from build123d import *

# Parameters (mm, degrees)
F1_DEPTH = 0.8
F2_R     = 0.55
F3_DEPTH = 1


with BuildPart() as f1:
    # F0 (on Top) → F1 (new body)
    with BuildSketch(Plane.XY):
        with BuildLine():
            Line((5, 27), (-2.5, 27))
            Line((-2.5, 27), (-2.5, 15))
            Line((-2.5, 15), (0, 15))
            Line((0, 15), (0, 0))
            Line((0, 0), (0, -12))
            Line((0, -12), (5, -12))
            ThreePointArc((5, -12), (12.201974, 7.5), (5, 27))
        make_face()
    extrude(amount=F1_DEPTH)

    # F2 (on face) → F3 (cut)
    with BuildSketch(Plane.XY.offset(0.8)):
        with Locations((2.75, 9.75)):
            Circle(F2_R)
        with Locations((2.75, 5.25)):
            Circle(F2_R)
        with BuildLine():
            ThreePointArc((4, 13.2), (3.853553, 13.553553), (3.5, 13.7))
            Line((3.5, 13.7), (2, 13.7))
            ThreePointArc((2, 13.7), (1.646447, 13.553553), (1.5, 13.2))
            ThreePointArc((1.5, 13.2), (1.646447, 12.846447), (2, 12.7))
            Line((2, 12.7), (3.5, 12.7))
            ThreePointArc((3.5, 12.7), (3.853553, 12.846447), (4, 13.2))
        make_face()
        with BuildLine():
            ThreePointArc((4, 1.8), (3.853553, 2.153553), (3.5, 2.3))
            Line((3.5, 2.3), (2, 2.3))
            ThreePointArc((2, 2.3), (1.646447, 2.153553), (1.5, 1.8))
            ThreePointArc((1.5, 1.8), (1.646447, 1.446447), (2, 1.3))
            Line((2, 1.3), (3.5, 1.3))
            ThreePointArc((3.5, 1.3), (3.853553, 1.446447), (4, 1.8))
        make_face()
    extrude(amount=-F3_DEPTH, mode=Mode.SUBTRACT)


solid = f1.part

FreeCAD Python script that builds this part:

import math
import FreeCAD as App
import Part
import Sketcher
from FreeCAD import Vector
Q = App.Units.Quantity

doc = App.newDocument("Part")
body = doc.addObject("PartDesign::Body", "Body")

sketch1 = body.newObject("Sketcher::SketchObject", "Sketch")
sketch1.AttachmentSupport = (doc.getObject("XY_Plane"), [""])
sketch1.MapMode = "FlatFace"
sketch1.addGeometry(Part.LineSegment(Vector(5, 27, 0), Vector(-2.5, 27, 0)), False)
sketch1.addGeometry(Part.LineSegment(Vector(-2.5, 27, 0), Vector(-2.5, 15, 0)), False)
sketch1.addGeometry(Part.LineSegment(Vector(-2.5, 15, 0), Vector(0, 15, 0)), False)
sketch1.addGeometry(Part.LineSegment(Vector(0, 15, 0), Vector(0, -12, 0)), False)
sketch1.addGeometry(Part.LineSegment(Vector(0, -12, 0), Vector(5, -12, 0)), False)
sketch1.addGeometry(Part.ArcOfCircle(Part.Circle(Vector(-17.8, 7.5, 0), Vector(0, 0, 1), 30), math.radians(-41), math.radians(41)), False)
sketch1.addConstraint(Sketcher.Constraint("Coincident", 0, 2, 1, 1))
sketch1.addConstraint(Sketcher.Constraint("Coincident", 1, 2, 2, 1))
sketch1.addConstraint(Sketcher.Constraint("Coincident", 2, 2, 3, 1))
sketch1.addConstraint(Sketcher.Constraint("Coincident", 3, 2, 4, 1))
sketch1.addConstraint(Sketcher.Constraint("Coincident", 4, 2, 5, 1))
sketch1.addConstraint(Sketcher.Constraint("Coincident", 5, 2, 0, 1))
sketch1.addConstraint(Sketcher.Constraint("Horizontal", 0))
sketch1.addConstraint(Sketcher.Constraint("Vertical", 1))
sketch1.addConstraint(Sketcher.Constraint("Horizontal", 2))
sketch1.addConstraint(Sketcher.Constraint("Vertical", 3))
sketch1.addConstraint(Sketcher.Constraint("Horizontal", 4))
sketch1.addConstraint(Sketcher.Constraint("PointOnObject", 2, 2, -2))
sketch1.addConstraint(Sketcher.Constraint("Vertical", 4, 2, 5, 2))
sketch1.addConstraint(Sketcher.Constraint("Radius", 5, Q("29.999999 mm")))
sketch1.addConstraint(Sketcher.Constraint("DistanceX", 4, 1, 4, 2, Q("5 mm")))
sketch1.addConstraint(Sketcher.Constraint("DistanceY", 1, 2, 1, 1, Q("12 mm")))
sketch1.addConstraint(Sketcher.Constraint("DistanceY", 3, 2, 3, 1, Q("27 mm")))
sketch1.addConstraint(Sketcher.Constraint("DistanceX", 0, 2, 0, 1, Q("7.5 mm")))
sketch1.addConstraint(Sketcher.Constraint("DistanceY", -1, 1, 0, 2, Q("27 mm")))
pad1 = body.newObject("PartDesign::Pad", "Pad")
pad1.Profile = sketch1
pad1.Length = 0.8

sketch2 = body.newObject("Sketcher::SketchObject", "Sketch001")
sketch2.AttachmentSupport = (doc.getObject("XY_Plane"), [""])
sketch2.MapMode = "FlatFace"
sketch2.AttachmentOffset = App.Placement(Vector(0, 0, 0.8), App.Rotation())
sketch2.addGeometry(Part.Circle(Vector(2.8, 9.8, 0), Vector(0, 0, 1), 0.6), False)
sketch2.addGeometry(Part.Circle(Vector(2.8, 5.2, 0), Vector(0, 0, 1), 0.6), False)
sketch2.addGeometry(Part.ArcOfCircle(Part.Circle(Vector(3.5, 13.2, 0), Vector(0, 0, 1), 0.5), math.radians(0), math.radians(90)), False)
sketch2.addGeometry(Part.LineSegment(Vector(3.5, 13.7, 0), Vector(2, 13.7, 0)), False)
sketch2.addGeometry(Part.ArcOfCircle(Part.Circle(Vector(2, 13.2, 0), Vector(0, 0, 1), 0.5), math.radians(90), math.radians(180)), False)
sketch2.addGeometry(Part.ArcOfCircle(Part.Circle(Vector(2, 13.2, 0), Vector(0, 0, 1), 0.5), math.radians(-180), math.radians(-90)), False)
sketch2.addGeometry(Part.LineSegment(Vector(2, 12.7, 0), Vector(3.5, 12.7, 0)), False)
sketch2.addGeometry(Part.ArcOfCircle(Part.Circle(Vector(3.5, 13.2, 0), Vector(0, 0, 1), 0.5), math.radians(-90), math.radians(0)), False)
sketch2.addGeometry(Part.ArcOfCircle(Part.Circle(Vector(3.5, 1.8, 0), Vector(0, 0, 1), 0.5), math.radians(0), math.radians(90)), False)
sketch2.addGeometry(Part.LineSegment(Vector(3.5, 2.3, 0), Vector(2, 2.3, 0)), False)
sketch2.addGeometry(Part.ArcOfCircle(Part.Circle(Vector(2, 1.8, 0), Vector(0, 0, 1), 0.5), math.radians(90), math.radians(180)), False)
sketch2.addGeometry(Part.ArcOfCircle(Part.Circle(Vector(2, 1.8, 0), Vector(0, 0, 1), 0.5), math.radians(-180), math.radians(-90)), False)
sketch2.addGeometry(Part.LineSegment(Vector(2, 1.3, 0), Vector(3.5, 1.3, 0)), False)
sketch2.addGeometry(Part.ArcOfCircle(Part.Circle(Vector(3.5, 1.8, 0), Vector(0, 0, 1), 0.5), math.radians(-90), math.radians(0)), False)
sketch2.addConstraint(Sketcher.Constraint("Coincident", 2, 2, 3, 1))
sketch2.addConstraint(Sketcher.Constraint("Coincident", 3, 2, 4, 1))
sketch2.addConstraint(Sketcher.Constraint("Coincident", 4, 2, 5, 1))
sketch2.addConstraint(Sketcher.Constraint("Coincident", 5, 2, 6, 1))
sketch2.addConstraint(Sketcher.Constraint("Coincident", 6, 2, 7, 1))
sketch2.addConstraint(Sketcher.Constraint("Coincident", 7, 2, 2, 1))
sketch2.addConstraint(Sketcher.Constraint("Coincident", 8, 2, 9, 1))
sketch2.addConstraint(Sketcher.Constraint("Coincident", 9, 2, 10, 1))
sketch2.addConstraint(Sketcher.Constraint("Coincident", 10, 2, 11, 1))
sketch2.addConstraint(Sketcher.Constraint("Coincident", 11, 2, 12, 1))
sketch2.addConstraint(Sketcher.Constraint("Coincident", 12, 2, 13, 1))
sketch2.addConstraint(Sketcher.Constraint("Coincident", 13, 2, 8, 1))
sketch2.addConstraint(Sketcher.Constraint("Horizontal", 3))
sketch2.addConstraint(Sketcher.Constraint("Horizontal", 6))
sketch2.addConstraint(Sketcher.Constraint("Horizontal", 9))
sketch2.addConstraint(Sketcher.Constraint("Horizontal", 12))
sketch2.addConstraint(Sketcher.Constraint("Coincident", 5, 3, 4, 3))
sketch2.addConstraint(Sketcher.Constraint("Coincident", 7, 3, 2, 3))
sketch2.addConstraint(Sketcher.Constraint("Coincident", 11, 3, 10, 3))
sketch2.addConstraint(Sketcher.Constraint("Coincident", 13, 3, 8, 3))
sketch2.addConstraint(Sketcher.Constraint("Equal", 0, 1))
sketch2.addConstraint(Sketcher.Constraint("Equal", 7, 8))
sketch2.addConstraint(Sketcher.Constraint("Horizontal", 7, 3, 4, 2))
sketch2.addConstraint(Sketcher.Constraint("Horizontal", 4, 2, 7, 2))
sketch2.addConstraint(Sketcher.Constraint("Horizontal", 13, 3, 10, 2))
sketch2.addConstraint(Sketcher.Constraint("Horizontal", 10, 2, 13, 2))
sketch2.addConstraint(Sketcher.Constraint("Vertical", 0, 3, 1, 3))
sketch2.addConstraint(Sketcher.Constraint("Vertical", 7, 3, 8, 3))
sketch2.addConstraint(Sketcher.Constraint("Vertical", 5, 3, 10, 3))
sketch2.addConstraint(Sketcher.Constraint("Vertical", 13, 3, 2, 2))
sketch2.addConstraint(Sketcher.Constraint("Vertical", 11, 3, 3, 2))
sketch2.addConstraint(Sketcher.Constraint("Vertical", 3, 2, 5, 2))
sketch2.addConstraint(Sketcher.Constraint("Vertical", 2, 2, 6, 2))
sketch2.addConstraint(Sketcher.Constraint("Vertical", 6, 2, 8, 2))
sketch2.addConstraint(Sketcher.Constraint("Vertical", 5, 2, 9, 2))
sketch2.addConstraint(Sketcher.Constraint("Vertical", 9, 2, 11, 2))
sketch2.addConstraint(Sketcher.Constraint("Vertical", 8, 2, 12, 2))
sketch2.addConstraint(Sketcher.Constraint("Diameter", 0, Q("1.1 mm")))
sketch2.addConstraint(Sketcher.Constraint("Radius", 2, Q("0.500001 mm")))
sketch2.addConstraint(Sketcher.Constraint("DistanceX", 3, 2, 3, 1, Q("1.5 mm")))
sketch2.addConstraint(Sketcher.Constraint("DistanceX", -1, 1, 4, 3, Q("2.000001 mm")))
sketch2.addConstraint(Sketcher.Constraint("DistanceY", -1, 1, 2, 3, Q("13.199999 mm")))
sketch2.addConstraint(Sketcher.Constraint("DistanceY", -1, 1, 8, 3, Q("1.799999 mm")))
sketch2.addConstraint(Sketcher.Constraint("DistanceY", 1, 3, 0, 3, Q("4.5 mm")))
sketch2.addConstraint(Sketcher.Constraint("DistanceX", -1, 1, 0, 3, Q("2.75 mm")))
sketch2.addConstraint(Sketcher.Constraint("DistanceY", -1, 1, 0, 3, Q("9.75 mm")))
pocket1 = body.newObject("PartDesign::Pocket", "Pocket")
pocket1.Profile = sketch2
pocket1.Length = 1

doc.recompute()
